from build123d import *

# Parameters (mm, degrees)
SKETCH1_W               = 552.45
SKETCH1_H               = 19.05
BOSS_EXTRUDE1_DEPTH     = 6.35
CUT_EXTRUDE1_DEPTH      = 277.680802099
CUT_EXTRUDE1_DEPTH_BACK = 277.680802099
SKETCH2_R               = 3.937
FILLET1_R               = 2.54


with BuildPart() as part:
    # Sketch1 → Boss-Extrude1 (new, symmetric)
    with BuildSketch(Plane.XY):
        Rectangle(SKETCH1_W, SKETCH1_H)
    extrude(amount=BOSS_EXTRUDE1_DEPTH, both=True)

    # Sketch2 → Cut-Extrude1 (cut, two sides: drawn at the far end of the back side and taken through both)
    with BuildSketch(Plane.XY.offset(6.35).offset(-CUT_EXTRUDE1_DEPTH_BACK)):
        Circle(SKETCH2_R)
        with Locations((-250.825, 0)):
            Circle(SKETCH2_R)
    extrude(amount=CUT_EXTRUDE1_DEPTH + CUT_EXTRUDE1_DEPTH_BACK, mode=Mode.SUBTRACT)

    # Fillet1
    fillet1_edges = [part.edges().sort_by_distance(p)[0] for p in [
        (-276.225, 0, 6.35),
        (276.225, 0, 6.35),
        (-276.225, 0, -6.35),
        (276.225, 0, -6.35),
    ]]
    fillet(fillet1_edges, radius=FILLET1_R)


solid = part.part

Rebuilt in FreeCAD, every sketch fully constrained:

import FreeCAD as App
import Part
import Sketcher
Q = App.Units.Quantity


def edges_at(feature, points):
    """Names of the edges that pass closest to the given points."""
    edges = feature.Shape.Edges
    near = lambda p: min(range(len(edges)), key=lambda i: edges[i].distToShape(Part.Vertex(*p))[0])
    return sorted({f"Edge{near(p) + 1}" for p in points})

doc = App.newDocument("Part")
params = doc.addObject("Spreadsheet::Sheet", "Params")
for row, (alias, value) in enumerate([
    ("sketch1_width", "21.75 in"),
    ("sketch1_height", "0.75 in"),
    ("pad1_length", "0.5 in"),
    ("sketch2_diameter", "0.31 in"),
    ("fillet_radius", "0.1 in"),
], start=1):
    params.set(f"A{row}", alias)
    params.set(f"B{row}", "=" + value)
    params.setAlias(f"B{row}", alias)

body = doc.addObject("PartDesign::Body", "Body")

# Sketch on XY plane
sketch1 = doc.addObject("Sketcher::SketchObject", "Sketch")
body.addObject(sketch1)
sketch1.AttachmentSupport = (doc.XY_Plane, [""])
sketch1.MapMode = "FlatFace"
sketch1.addGeometry([
    Part.LineSegment(App.Vector(-276, 10, 0), App.Vector(-276, -10, 0)),
    Part.LineSegment(App.Vector(-276, -10, 0), App.Vector(276, -10, 0)),
    Part.LineSegment(App.Vector(276, -10, 0), App.Vector(276, 10, 0)),
    Part.LineSegment(App.Vector(276, 10, 0), App.Vector(-276, 10, 0)),
], False)
sketch1.addConstraint([
    Sketcher.Constraint("Coincident", 0, 2, 1, 1),
    Sketcher.Constraint("Coincident", 1, 2, 2, 1),
    Sketcher.Constraint("Coincident", 2, 2, 3, 1),
    Sketcher.Constraint("Coincident", 3, 2, 0, 1),
    Sketcher.Constraint("Vertical", 0),
    Sketcher.Constraint("Horizontal", 1),
    Sketcher.Constraint("Vertical", 2),
    Sketcher.Constraint("Horizontal", 3),
    Sketcher.Constraint("Symmetric", 0, 2, 2, 2, -1, 1),
    Sketcher.Constraint("DistanceX", 1, 1, 1, 2, Q("21.75 in")),
    Sketcher.Constraint("DistanceY", 0, 2, 0, 1, Q("0.75 in")),
])
sketch1.setExpression("Constraints[9]", "Params.sketch1_width")
sketch1.setExpression("Constraints[10]", "Params.sketch1_height")
pad1 = doc.addObject("PartDesign::Pad", "Pad")
body.addObject(pad1)
pad1.Profile = sketch1
pad1.setExpression("Length", "Params.pad1_length")
pad1.Midplane = True

# Sketch on XY plane
sketch2 = doc.addObject("Sketcher::SketchObject", "Sketch001")
body.addObject(sketch2)
sketch2.AttachmentSupport = (doc.XY_Plane, [""])
sketch2.MapMode = "FlatFace"
sketch2.AttachmentOffset = App.Placement(App.Vector(0, 0, 0.25 * 25.4), App.Rotation())
sketch2.addGeometry([
    Part.Circle(App.Vector(0, 0, 0), App.Vector(0, 0, 1), 3.9),
    Part.Circle(App.Vector(-250.8, 0, 0), App.Vector(0, 0, 1), 3.9),
], False)
sketch2.addConstraint([
    Sketcher.Constraint("Coincident", 0, 3, -1, 1),
    Sketcher.Constraint("Equal", 0, 1),
    Sketcher.Constraint("PointOnObject", 1, 3, -1),
    Sketcher.Constraint("Diameter", 0, Q("0.31 in")),
    Sketcher.Constraint("DistanceX", 1, 3, -1, 1, Q("9.875 in")),
])
sketch2.setExpression("Constraints[3]", "Params.sketch2_diameter")
pocket1 = doc.addObject("PartDesign::Pocket", "Pocket")
body.addObject(pocket1)
pocket1.Profile = sketch2
pocket1.Type = "ThroughAll"
pocket1.Midplane = True
doc.recompute()

fillet = doc.addObject("PartDesign::Fillet", "Fillet")
body.addObject(fillet)
fillet.Base = (pocket1, edges_at(pocket1, [
    (-276.225, 0, 6.35),
    (276.225, 0, 6.35),
    (-276.225, 0, -6.35),
    (276.225, 0, -6.35),
]))
fillet.setExpression("Radius", "Params.fillet_radius")

doc.recompute()
